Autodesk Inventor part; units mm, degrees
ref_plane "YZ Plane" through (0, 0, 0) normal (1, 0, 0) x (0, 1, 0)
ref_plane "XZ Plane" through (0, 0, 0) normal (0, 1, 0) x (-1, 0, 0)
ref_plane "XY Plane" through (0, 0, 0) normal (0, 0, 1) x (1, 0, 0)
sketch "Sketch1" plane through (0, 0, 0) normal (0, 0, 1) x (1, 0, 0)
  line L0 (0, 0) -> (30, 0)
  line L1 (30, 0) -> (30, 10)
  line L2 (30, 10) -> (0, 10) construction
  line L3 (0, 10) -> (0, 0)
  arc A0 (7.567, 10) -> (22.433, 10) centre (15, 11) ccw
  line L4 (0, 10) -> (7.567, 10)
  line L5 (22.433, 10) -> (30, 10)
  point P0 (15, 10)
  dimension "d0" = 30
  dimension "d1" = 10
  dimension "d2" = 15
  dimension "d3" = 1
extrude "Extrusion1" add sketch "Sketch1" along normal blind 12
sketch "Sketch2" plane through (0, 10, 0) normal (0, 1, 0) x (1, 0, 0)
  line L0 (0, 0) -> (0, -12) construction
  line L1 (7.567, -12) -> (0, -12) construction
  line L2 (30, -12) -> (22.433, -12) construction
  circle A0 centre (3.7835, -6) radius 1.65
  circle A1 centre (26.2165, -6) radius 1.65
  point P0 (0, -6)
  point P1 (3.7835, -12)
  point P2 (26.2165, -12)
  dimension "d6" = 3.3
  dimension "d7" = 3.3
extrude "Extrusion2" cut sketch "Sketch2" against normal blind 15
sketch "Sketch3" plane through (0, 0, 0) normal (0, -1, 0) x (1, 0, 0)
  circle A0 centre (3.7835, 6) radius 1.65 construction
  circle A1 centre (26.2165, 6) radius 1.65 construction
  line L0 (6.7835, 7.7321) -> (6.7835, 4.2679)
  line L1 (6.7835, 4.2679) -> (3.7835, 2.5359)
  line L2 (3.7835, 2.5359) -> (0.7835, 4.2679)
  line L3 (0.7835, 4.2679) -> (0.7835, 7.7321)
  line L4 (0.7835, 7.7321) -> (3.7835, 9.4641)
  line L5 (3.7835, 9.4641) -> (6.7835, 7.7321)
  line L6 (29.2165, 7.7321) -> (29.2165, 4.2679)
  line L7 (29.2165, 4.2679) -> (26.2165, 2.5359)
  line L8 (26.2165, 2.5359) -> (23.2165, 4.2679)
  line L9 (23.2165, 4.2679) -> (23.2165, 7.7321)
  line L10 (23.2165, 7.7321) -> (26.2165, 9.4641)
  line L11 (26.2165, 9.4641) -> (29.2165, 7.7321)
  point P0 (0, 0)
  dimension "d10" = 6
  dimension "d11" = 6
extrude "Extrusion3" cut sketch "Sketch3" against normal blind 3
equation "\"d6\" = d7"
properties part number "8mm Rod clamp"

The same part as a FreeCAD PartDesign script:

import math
import FreeCAD as App
import Part
import Sketcher
Q = App.Units.Quantity

doc = App.newDocument("Part")
body = doc.addObject("PartDesign::Body", "Body")

sketch1 = body.newObject("Sketcher::SketchObject", "Sketch")
sketch1.AttachmentSupport = (doc.getObject("XY_Plane"), [""])
sketch1.MapMode = "FlatFace"
sketch1.addGeometry(Part.LineSegment(App.Vector(0, 10, 0), App.Vector(0, 0, 0)), False)
sketch1.addGeometry(Part.LineSegment(App.Vector(0, 0, 0), App.Vector(30, 0, 0)), False)
sketch1.addGeometry(Part.LineSegment(App.Vector(30, 0, 0), App.Vector(30, 10, 0)), False)
sketch1.addGeometry(Part.LineSegment(App.Vector(30, 10, 0), App.Vector(22.433, 10, 0)), False)
sketch1.addGeometry(Part.ArcOfCircle(Part.Circle(App.Vector(15, 11, 0), App.Vector(0, 0, 1), 7.499966), math.radians(-172.337709), math.radians(-7.662291)), False)
sketch1.addGeometry(Part.LineSegment(App.Vector(7.567, 10, 0), App.Vector(0, 10, 0)), False)
sketch1.addConstraint(Sketcher.Constraint("Coincident", 0, 2, 1, 1))
sketch1.addConstraint(Sketcher.Constraint("Coincident", 1, 2, 2, 1))
sketch1.addConstraint(Sketcher.Constraint("Coincident", 2, 2, 3, 1))
sketch1.addConstraint(Sketcher.Constraint("Coincident", 3, 2, 4, 2))
sketch1.addConstraint(Sketcher.Constraint("Coincident", 4, 1, 5, 1))
sketch1.addConstraint(Sketcher.Constraint("Coincident", 5, 2, 0, 1))
sketch1.addConstraint(Sketcher.Constraint("Vertical", 0))
sketch1.addConstraint(Sketcher.Constraint("Horizontal", 1))
sketch1.addConstraint(Sketcher.Constraint("Vertical", 2))
sketch1.addConstraint(Sketcher.Constraint("Horizontal", 3))
sketch1.addConstraint(Sketcher.Constraint("Horizontal", 5))
sketch1.addConstraint(Sketcher.Constraint("Coincident", 0, 2, -1, 1))
sketch1.addConstraint(Sketcher.Constraint("Horizontal", 3, 2, 4, 1))
sketch1.addConstraint(Sketcher.Constraint("Equal", 3, 5))
sketch1.addConstraint(Sketcher.Constraint("Radius", 4, 7.5))
sketch1.addConstraint(Sketcher.Constraint("DistanceX", 1, 1, 1, 2, 30.0))
sketch1.addConstraint(Sketcher.Constraint("DistanceY", 0, 2, 0, 1, 10.0))
sketch1.addConstraint(Sketcher.Constraint("DistanceY", 2, 2, 4, 3, 1.0))
pad1 = body.newObject("PartDesign::Pad", "Pad")
pad1.Profile = sketch1
pad1.Length = 12

sketch2 = body.newObject("Sketcher::SketchObject", "Sketch001")
sketch2.AttachmentSupport = (doc.getObject("XZ_Plane"), [""])
sketch2.MapMode = "FlatFace"
sketch2.AttachmentOffset = App.Placement(App.Vector(0, 0, -10), App.Rotation())
sketch2.addGeometry(Part.Circle(App.Vector(3.7835, 6, 0), App.Vector(0, 0, 1), 1.65), False)
sketch2.addGeometry(Part.Circle(App.Vector(26.2165, 6, 0), App.Vector(0, 0, 1), 1.65), False)
sketch2.addConstraint(Sketcher.Constraint("Equal", 0, 1))
sketch2.addConstraint(Sketcher.Constraint("Horizontal", 0, 3, 1, 3))
sketch2.addConstraint(Sketcher.Constraint("Diameter", 0, 3.3))
sketch2.addConstraint(Sketcher.Constraint("DistanceY", -1, 1, 0, 3, 6.0))
sketch2.addConstraint(Sketcher.Constraint("DistanceX", 0, 3, 1, 3, 22.433))
sketch2.addConstraint(Sketcher.Constraint("DistanceX", -1, 1, 0, 3, 3.7835))
pocket1 = body.newObject("PartDesign::Pocket", "Pocket")
pocket1.Profile = sketch2
pocket1.Length = 15
pocket1.Reversed = True

sketch3 = body.newObject("Sketcher::SketchObject", "Sketch002")
sketch3.AttachmentSupport = (doc.getObject("XZ_Plane"), [""])
sketch3.MapMode = "FlatFace"
sketch3.addGeometry(Part.LineSegment(App.Vector(6.7835, 4.2679, 0), App.Vector(6.7835, 7.7321, 0)), False)
sketch3.addGeometry(Part.LineSegment(App.Vector(6.7835, 7.7321, 0), App.Vector(3.7835, 9.4641, 0)), False)
sketch3.addGeometry(Part.LineSegment(App.Vector(3.7835, 9.4641, 0), App.Vector(0.7835, 7.7321, 0)), False)
sketch3.addGeometry(Part.LineSegment(App.Vector(0.7835, 7.7321, 0), App.Vector(0.7835, 4.2679, 0)), False)
sketch3.addGeometry(Part.LineSegment(App.Vector(0.7835, 4.2679, 0), App.Vector(3.7835, 2.5359, 0)), False)
sketch3.addGeometry(Part.LineSegment(App.Vector(3.7835, 2.5359, 0), App.Vector(6.7835, 4.2679, 0)), False)
sketch3.addGeometry(Part.LineSegment(App.Vector(29.2165, 4.2679, 0), App.Vector(29.2165, 7.7321, 0)), False)
sketch3.addGeometry(Part.LineSegment(App.Vector(29.2165, 7.7321, 0), App.Vector(26.2165, 9.4641, 0)), False)
sketch3.addGeometry(Part.LineSegment(App.Vector(26.2165, 9.4641, 0), App.Vector(23.2165, 7.7321, 0)), False)
sketch3.addGeometry(Part.LineSegment(App.Vector(23.2165, 7.7321, 0), App.Vector(23.2165, 4.2679, 0)), False)
sketch3.addGeometry(Part.LineSegment(App.Vector(23.2165, 4.2679, 0), App.Vector(26.2165, 2.5359, 0)), False)
sketch3.addGeometry(Part.LineSegment(App.Vector(26.2165, 2.5359, 0), App.Vector(29.2165, 4.2679, 0)), False)
sketch3.addConstraint(Sketcher.Constraint("Coincident", 0, 2, 1, 1))
sketch3.addConstraint(Sketcher.Constraint("Coincident", 1, 2, 2, 1))
sketch3.addConstraint(Sketcher.Constraint("Coincident", 2, 2, 3, 1))
sketch3.addConstraint(Sketcher.Constraint("Coincident", 3, 2, 4, 1))
sketch3.addConstraint(Sketcher.Constraint("Coincident", 4, 2, 5, 1))
sketch3.addConstraint(Sketcher.Constraint("Coincident", 5, 2, 0, 1))
sketch3.addConstraint(Sketcher.Constraint("Coincident", 6, 2, 7, 1))
sketch3.addConstraint(Sketcher.Constraint("Coincident", 7, 2, 8, 1))
sketch3.addConstraint(Sketcher.Constraint("Coincident", 8, 2, 9, 1))
sketch3.addConstraint(Sketcher.Constraint("Coincident", 9, 2, 10, 1))
sketch3.addConstraint(Sketcher.Constraint("Coincident", 10, 2, 11, 1))
sketch3.addConstraint(Sketcher.Constraint("Coincident", 11, 2, 6, 1))
sketch3.addConstraint(Sketcher.Constraint("Vertical", 0))
sketch3.addConstraint(Sketcher.Constraint("Vertical", 3))
sketch3.addConstraint(Sketcher.Constraint("Vertical", 6))
sketch3.addConstraint(Sketcher.Constraint("Vertical", 9))
sketch3.addConstraint(Sketcher.Constraint("Parallel", 1, 4))
sketch3.addConstraint(Sketcher.Constraint("Parallel", 2, 5))
sketch3.addConstraint(Sketcher.Constraint("Parallel", 4, 7))
sketch3.addConstraint(Sketcher.Constraint("Parallel", 5, 8))
sketch3.addConstraint(Sketcher.Constraint("Parallel", 7, 10))
sketch3.addConstraint(Sketcher.Constraint("Parallel", 8, 11))
sketch3.addConstraint(Sketcher.Constraint("Horizontal", 0, 2, 2, 2))
sketch3.addConstraint(Sketcher.Constraint("Horizontal", 3, 2, 5, 2))
sketch3.addConstraint(Sketcher.Constraint("Horizontal", 2, 2, 6, 2))
sketch3.addConstraint(Sketcher.Constraint("Horizontal", 1, 2, 7, 2))
sketch3.addConstraint(Sketcher.Constraint("Horizontal", 6, 2, 8, 2))
sketch3.addConstraint(Sketcher.Constraint("Horizontal", 5, 2, 9, 2))
sketch3.addConstraint(Sketcher.Constraint("Horizontal", 4, 2, 10, 2))
sketch3.addConstraint(Sketcher.Constraint("Vertical", 1, 2, 4, 2))
sketch3.addConstraint(Sketcher.Constraint("DistanceX", 2, 2, 0, 2, 6.0))
sketch3.addConstraint(Sketcher.Constraint("Angle", 1, Q("150.0007 deg")))
sketch3.addConstraint(Sketcher.Constraint("DistanceY", 0, 1, 0, 2, 3.4642))
sketch3.addConstraint(Sketcher.Constraint("DistanceY", -1, 1, 0, 2, 7.732))
sketch3.addConstraint(Sketcher.Constraint("DistanceX", 0, 2, 6, 2, 22.433))
sketch3.addConstraint(Sketcher.Constraint("DistanceX", -1, 1, 0, 2, 6.7835))
pocket2 = body.newObject("PartDesign::Pocket", "Pocket001")
pocket2.Profile = sketch3
pocket2.Length = 3

doc.recompute()
